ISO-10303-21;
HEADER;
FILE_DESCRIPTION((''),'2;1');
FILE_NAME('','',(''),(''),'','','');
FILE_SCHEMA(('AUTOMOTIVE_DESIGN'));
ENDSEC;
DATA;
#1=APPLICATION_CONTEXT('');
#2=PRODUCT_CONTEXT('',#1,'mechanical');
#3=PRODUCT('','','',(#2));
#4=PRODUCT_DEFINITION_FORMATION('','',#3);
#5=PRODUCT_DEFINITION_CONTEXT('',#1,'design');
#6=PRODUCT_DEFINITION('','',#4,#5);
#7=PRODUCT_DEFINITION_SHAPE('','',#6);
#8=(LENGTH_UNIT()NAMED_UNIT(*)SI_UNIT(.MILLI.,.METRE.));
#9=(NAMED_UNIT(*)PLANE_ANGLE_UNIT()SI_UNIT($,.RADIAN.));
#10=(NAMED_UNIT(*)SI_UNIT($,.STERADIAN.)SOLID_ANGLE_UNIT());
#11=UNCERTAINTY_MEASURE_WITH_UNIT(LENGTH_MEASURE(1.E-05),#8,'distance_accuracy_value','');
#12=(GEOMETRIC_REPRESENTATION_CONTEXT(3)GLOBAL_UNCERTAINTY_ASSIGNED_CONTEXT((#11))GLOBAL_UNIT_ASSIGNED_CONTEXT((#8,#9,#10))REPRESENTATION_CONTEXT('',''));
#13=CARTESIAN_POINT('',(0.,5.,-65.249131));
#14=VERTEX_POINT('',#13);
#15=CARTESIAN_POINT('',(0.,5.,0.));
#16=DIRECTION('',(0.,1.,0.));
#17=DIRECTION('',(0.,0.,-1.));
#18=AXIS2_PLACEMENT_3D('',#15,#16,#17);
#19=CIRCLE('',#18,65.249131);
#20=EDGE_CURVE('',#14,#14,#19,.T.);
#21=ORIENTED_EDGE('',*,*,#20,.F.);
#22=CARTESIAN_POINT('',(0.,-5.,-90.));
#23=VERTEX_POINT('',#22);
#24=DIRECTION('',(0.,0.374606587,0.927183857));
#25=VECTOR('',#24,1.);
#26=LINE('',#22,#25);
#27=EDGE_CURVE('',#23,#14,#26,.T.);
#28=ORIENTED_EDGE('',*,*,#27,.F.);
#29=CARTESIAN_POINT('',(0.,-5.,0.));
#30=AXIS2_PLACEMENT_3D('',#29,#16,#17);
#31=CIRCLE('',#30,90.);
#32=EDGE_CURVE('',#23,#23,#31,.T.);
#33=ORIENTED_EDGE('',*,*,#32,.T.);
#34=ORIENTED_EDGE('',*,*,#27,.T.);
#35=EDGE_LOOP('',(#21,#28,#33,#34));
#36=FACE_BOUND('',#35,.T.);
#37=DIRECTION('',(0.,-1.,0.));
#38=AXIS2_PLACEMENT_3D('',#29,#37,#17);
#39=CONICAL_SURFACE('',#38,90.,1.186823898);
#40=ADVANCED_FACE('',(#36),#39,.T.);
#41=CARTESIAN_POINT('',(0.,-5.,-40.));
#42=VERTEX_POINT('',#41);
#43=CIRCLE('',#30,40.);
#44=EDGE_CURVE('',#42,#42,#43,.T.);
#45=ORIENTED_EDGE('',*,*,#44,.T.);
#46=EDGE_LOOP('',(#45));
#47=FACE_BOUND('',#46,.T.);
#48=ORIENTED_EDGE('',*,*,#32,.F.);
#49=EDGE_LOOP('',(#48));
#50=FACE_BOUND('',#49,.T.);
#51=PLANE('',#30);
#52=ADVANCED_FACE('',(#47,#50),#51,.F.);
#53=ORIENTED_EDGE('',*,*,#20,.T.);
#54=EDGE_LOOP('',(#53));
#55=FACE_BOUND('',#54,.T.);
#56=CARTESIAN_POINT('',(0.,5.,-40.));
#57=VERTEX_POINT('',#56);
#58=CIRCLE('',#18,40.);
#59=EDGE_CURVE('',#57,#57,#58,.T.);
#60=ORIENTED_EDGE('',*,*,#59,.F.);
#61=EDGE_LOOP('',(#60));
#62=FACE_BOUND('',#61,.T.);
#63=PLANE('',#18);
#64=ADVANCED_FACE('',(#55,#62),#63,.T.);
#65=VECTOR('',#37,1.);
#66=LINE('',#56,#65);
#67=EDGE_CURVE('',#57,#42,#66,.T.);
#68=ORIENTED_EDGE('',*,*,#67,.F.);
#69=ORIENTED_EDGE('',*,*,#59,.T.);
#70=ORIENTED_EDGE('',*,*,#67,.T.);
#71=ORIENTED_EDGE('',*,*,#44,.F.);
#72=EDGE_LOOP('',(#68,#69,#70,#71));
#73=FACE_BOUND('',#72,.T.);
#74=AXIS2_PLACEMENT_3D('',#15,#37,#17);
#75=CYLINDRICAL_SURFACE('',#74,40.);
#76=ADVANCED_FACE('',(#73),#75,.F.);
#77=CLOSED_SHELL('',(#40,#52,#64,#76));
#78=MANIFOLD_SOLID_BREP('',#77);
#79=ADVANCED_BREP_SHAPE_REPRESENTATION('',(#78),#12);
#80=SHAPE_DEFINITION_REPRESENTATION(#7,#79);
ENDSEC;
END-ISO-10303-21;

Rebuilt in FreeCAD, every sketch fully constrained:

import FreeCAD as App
import Part
import Sketcher
Q = App.Units.Quantity


def add_polygon(sketch, points):
    """Adds a closed chain of lines whose ends are joined by coincident constraints."""
    first, n = sketch.GeometryCount, len(points)
    for a, b in zip(points, points[1:] + points[:1]):
        sketch.addGeometry(Part.LineSegment(App.Vector(*a, 0), App.Vector(*b, 0)), False)
    for i in range(n):
        sketch.addConstraint(Sketcher.Constraint("Coincident", first + i, 2, first + (i + 1) % n, 1))

doc = App.newDocument("Part")
params = doc.addObject("Spreadsheet::Sheet", "Params")
for row, (alias, value) in enumerate([
    ("sketch1_width", "10 mm"),
    ("sketch1_height", "50 mm"),
    ("revolution_angle", "360 deg"),
], start=1):
    params.set(f"A{row}", alias)
    params.set(f"B{row}", "=" + value)
    params.setAlias(f"B{row}", alias)

body = doc.addObject("PartDesign::Body", "Body")

# Sketch on YZ plane
sketch1 = body.newObject("Sketcher::SketchObject", "Sketch")
sketch1.AttachmentSupport = (doc.getObject("YZ_Plane"), [""])
sketch1.MapMode = "FlatFace"
add_polygon(sketch1, [(5, -40), (-5, -40), (-5, -90), (5, -65)])  # lines 0-3
sketch1.addConstraint([
    Sketcher.Constraint("Horizontal", 0),
    Sketcher.Constraint("Vertical", 1),
    Sketcher.Constraint("Vertical", 3),
    Sketcher.Constraint("DistanceX", 0, 2, 0, 1, 10.0),
    Sketcher.Constraint("DistanceY", 1, 2, 1, 1, 50.0),
    Sketcher.Constraint("Angle", 2, Q("68 deg")),
    Sketcher.Constraint("DistanceX", 0, 2, -1, 1, 5.0),
    Sketcher.Constraint("DistanceY", 0, 2, -1, 1, 40.0),
])
sketch1.setExpression("Constraints[7]", "Params.sketch1_width")
sketch1.setExpression("Constraints[8]", "Params.sketch1_height")
revolution = body.newObject("PartDesign::Revolution", "Revolution")
revolution.Profile = sketch1
revolution.ReferenceAxis = (sketch1, ["H_Axis"])
revolution.setExpression("Angle", "Params.revolution_angle")

doc.recompute()
